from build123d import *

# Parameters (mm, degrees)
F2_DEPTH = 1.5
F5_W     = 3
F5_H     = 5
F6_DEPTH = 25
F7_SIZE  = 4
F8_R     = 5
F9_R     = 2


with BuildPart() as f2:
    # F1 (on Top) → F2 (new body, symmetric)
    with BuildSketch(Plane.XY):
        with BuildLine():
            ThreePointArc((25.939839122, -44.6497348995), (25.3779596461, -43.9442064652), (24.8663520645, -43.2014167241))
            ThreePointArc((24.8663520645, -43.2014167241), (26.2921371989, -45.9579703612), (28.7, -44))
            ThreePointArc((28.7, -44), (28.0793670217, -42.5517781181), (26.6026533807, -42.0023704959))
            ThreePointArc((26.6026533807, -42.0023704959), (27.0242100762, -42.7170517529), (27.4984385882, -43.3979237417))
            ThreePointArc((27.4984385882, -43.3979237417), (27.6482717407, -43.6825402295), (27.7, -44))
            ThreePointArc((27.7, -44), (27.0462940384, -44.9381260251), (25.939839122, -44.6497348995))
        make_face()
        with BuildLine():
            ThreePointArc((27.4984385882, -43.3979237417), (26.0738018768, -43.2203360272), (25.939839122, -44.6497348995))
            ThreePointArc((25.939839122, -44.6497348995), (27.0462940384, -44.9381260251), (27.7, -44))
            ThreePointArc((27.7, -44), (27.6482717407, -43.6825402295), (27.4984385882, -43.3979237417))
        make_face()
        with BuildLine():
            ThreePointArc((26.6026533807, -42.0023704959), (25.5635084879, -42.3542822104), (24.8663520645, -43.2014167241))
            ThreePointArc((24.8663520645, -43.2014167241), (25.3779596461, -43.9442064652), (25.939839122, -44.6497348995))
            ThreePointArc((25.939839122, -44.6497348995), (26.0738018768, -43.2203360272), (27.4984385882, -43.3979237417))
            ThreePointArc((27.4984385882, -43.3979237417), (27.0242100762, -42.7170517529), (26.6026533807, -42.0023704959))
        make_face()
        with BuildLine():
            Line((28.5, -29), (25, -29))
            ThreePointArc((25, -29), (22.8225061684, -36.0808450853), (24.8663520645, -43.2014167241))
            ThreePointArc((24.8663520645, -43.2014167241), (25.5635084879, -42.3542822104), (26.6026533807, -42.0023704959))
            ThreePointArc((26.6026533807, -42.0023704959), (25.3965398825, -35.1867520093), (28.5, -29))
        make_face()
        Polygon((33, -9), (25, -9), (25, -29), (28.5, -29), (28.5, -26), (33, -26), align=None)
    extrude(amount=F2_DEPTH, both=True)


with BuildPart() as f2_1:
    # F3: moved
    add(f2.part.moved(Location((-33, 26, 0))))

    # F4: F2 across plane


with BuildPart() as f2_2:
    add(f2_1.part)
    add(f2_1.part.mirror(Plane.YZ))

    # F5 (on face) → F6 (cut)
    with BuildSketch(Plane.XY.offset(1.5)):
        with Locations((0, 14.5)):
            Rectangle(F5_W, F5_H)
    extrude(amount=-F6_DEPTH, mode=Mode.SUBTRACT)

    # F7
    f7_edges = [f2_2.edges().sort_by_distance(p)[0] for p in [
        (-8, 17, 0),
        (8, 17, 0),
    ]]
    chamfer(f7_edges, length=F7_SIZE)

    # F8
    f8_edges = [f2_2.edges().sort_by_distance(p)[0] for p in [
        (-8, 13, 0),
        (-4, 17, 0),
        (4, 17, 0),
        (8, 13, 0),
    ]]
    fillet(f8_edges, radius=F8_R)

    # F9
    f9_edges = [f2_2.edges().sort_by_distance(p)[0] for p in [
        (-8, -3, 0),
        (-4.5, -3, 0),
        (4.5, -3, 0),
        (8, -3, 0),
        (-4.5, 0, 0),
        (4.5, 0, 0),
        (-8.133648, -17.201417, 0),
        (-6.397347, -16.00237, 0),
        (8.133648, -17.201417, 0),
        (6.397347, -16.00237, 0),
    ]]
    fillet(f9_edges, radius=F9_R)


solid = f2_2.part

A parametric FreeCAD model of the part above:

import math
import FreeCAD as App
import Part
import Sketcher
from FreeCAD import Vector
Q = App.Units.Quantity


def edges_at(feature, points):
    """Names of the edges that pass closest to the given points."""
    edges = feature.Shape.Edges
    near = lambda p: min(range(len(edges)), key=lambda i: edges[i].distToShape(Part.Vertex(*p))[0])
    return sorted({f"Edge{near(p) + 1}" for p in points})

doc = App.newDocument("Part")
body = doc.addObject("PartDesign::Body", "Body")

# Sketch on XY plane
sketch1 = body.newObject("Sketcher::SketchObject", "Sketch")
sketch1.AttachmentSupport = (doc.getObject("XY_Plane"), [""])
sketch1.MapMode = "FlatFace"
sketch1.addGeometry([
    Part.ArcOfCircle(Part.Circle(Vector(26.7, -44, 0), Vector(0, 0, 1), 2), math.radians(156), math.radians(360)),  # 0
    Part.ArcOfCircle(Part.Circle(Vector(26.7, -44, 0), Vector(0, 0, 1), 2), math.radians(0), math.radians(93)),  # 1
    Part.ArcOfCircle(Part.Circle(Vector(36.3, -36.8, 0), Vector(0, 0, 1), 11), math.radians(135), math.radians(208)),  # 2
    Part.LineSegment(Vector(28.5, -29, 0), Vector(28.5, -26, 0)),  # 3
    Part.LineSegment(Vector(28.5, -26, 0), Vector(33, -26, 0)),  # 4
    Part.LineSegment(Vector(33, -26, 0), Vector(33, -9, 0)),  # 5
    Part.LineSegment(Vector(33, -9, 0), Vector(25, -9, 0)),  # 6
    Part.LineSegment(Vector(25, -9, 0), Vector(25, -29, 0)),  # 7
    Part.ArcOfCircle(Part.Circle(Vector(35.8, -36.2, 0), Vector(0, 0, 1), 13), math.radians(146), math.radians(213)),  # 8
], False)
sketch1.addConstraint([
    Sketcher.Constraint("Tangent", 0, 2, 1, 1),
    Sketcher.Constraint("Coincident", 1, 2, 2, 2),
    Sketcher.Constraint("Coincident", 2, 1, 3, 1),
    Sketcher.Constraint("Coincident", 3, 2, 4, 1),
    Sketcher.Constraint("Coincident", 4, 2, 5, 1),
    Sketcher.Constraint("Coincident", 5, 2, 6, 1),
    Sketcher.Constraint("Coincident", 6, 2, 7, 1),
    Sketcher.Constraint("Coincident", 7, 2, 8, 1),
    Sketcher.Constraint("Coincident", 8, 2, 0, 1),
    Sketcher.Constraint("Vertical", 3),
    Sketcher.Constraint("Horizontal", 4),
    Sketcher.Constraint("Vertical", 5),
    Sketcher.Constraint("Horizontal", 6),
    Sketcher.Constraint("Vertical", 7),
    Sketcher.Constraint("Equal", 0, 1),
    Sketcher.Constraint("Horizontal", 1, 3, 0, 2),
    Sketcher.Constraint("Horizontal", 2, 1, 7, 2),
    Sketcher.Constraint("Radius", 0, Q("2 mm")),
    Sketcher.Constraint("Radius", 2, Q("11 mm")),
    Sketcher.Constraint("Radius", 8, Q("13 mm")),
    Sketcher.Constraint("DistanceX", 6, 2, 6, 1, Q("8 mm")),
    Sketcher.Constraint("DistanceY", 3, 1, 3, 2, Q("3 mm")),
    Sketcher.Constraint("DistanceY", 5, 1, 5, 2, Q("17 mm")),
    Sketcher.Constraint("DistanceX", 4, 1, 4, 2, Q("4.5 mm")),
    Sketcher.Constraint("DistanceY", 0, 3, -1, 1, Q("44 mm")),
    Sketcher.Constraint("DistanceY", 2, 1, -1, 1, Q("29 mm")),
    Sketcher.Constraint("DistanceX", -1, 1, 4, 2, Q("33 mm")),
    Sketcher.Constraint("DistanceX", -1, 1, 0, 3, Q("26.7 mm")),
    Sketcher.Constraint("DistanceX", 8, 2, 1, 2, Q("1.736301 mm")),
    Sketcher.Constraint("DistanceX", -1, 1, 8, 3, Q("35.821931 mm")),
])
pad1 = body.newObject("PartDesign::Pad", "Pad")
pad1.Profile = sketch1
pad1.Length = 3
pad1.Midplane = True
body2 = doc.addObject("PartDesign::Body", "Body001")
doc.recompute()

body.Placement = App.Placement(Vector(-33, 26, 0), App.Rotation(Vector(0, 0, 1), 0))
boolean = body2.newObject("PartDesign::Boolean", "Boolean")
boolean.Type = "Fuse"
boolean.addObjects([body])
body3 = doc.addObject("PartDesign::Body", "Body002")
doc.recompute()

body3.BaseFeature = body2
doc.recompute()

mirroring = doc.addObject("Part::Mirroring", "Mirroring")
mirroring.Source = body2
mirroring.Base = Vector(0, 0, 0)
mirroring.Normal = Vector(1, 0, 0)
body4 = doc.addObject("PartDesign::Body", "Body003")
body4.BaseFeature = mirroring
boolean2 = body3.newObject("PartDesign::Boolean", "Boolean001")
boolean2.Type = "Fuse"
boolean2.addObjects([body4])
doc.recompute()

# Sketch on XY plane
sketch2 = body3.newObject("Sketcher::SketchObject", "Sketch001")
sketch2.AttachmentSupport = (doc.getObject("XY_Plane002"), [""])
sketch2.MapMode = "FlatFace"
sketch2.AttachmentOffset = App.Placement(Vector(0, 0, 1.5), App.Rotation())
sketch2.addGeometry([
    Part.LineSegment(Vector(-1.5, 17, 0), Vector(-1.5, 12, 0)),
    Part.LineSegment(Vector(-1.5, 12, 0), Vector(1.5, 12, 0)),
    Part.LineSegment(Vector(1.5, 12, 0), Vector(1.5, 17, 0)),
    Part.LineSegment(Vector(1.5, 17, 0), Vector(-1.5, 17, 0)),
], False)
sketch2.addConstraint([
    Sketcher.Constraint("Coincident", 0, 2, 1, 1),
    Sketcher.Constraint("Coincident", 1, 2, 2, 1),
    Sketcher.Constraint("Coincident", 2, 2, 3, 1),
    Sketcher.Constraint("Coincident", 3, 2, 0, 1),
    Sketcher.Constraint("Vertical", 0),
    Sketcher.Constraint("Horizontal", 1),
    Sketcher.Constraint("Vertical", 2),
    Sketcher.Constraint("Horizontal", 3),
    Sketcher.Constraint("DistanceX", 1, 1, 1, 2, Q("3 mm")),
    Sketcher.Constraint("DistanceY", 0, 2, 0, 1, Q("5 mm")),
    Sketcher.Constraint("DistanceY", -1, 1, 0, 2, Q("12 mm")),
    Sketcher.Constraint("DistanceX", 0, 2, -1, 1, Q("1.5 mm")),
])
pocket1 = body3.newObject("PartDesign::Pocket", "Pocket")
pocket1.Profile = sketch2
pocket1.Length = 25
doc.recompute()

chamfer = body3.newObject("PartDesign::Chamfer", "Chamfer")
chamfer.Base = (pocket1, edges_at(pocket1, [(-8, 17, 0), (8, 17, 0)]))
chamfer.Size = 4
doc.recompute()

fillet = body3.newObject("PartDesign::Fillet", "Fillet")
fillet.Base = (chamfer, edges_at(chamfer, [
    (-8, 13, 0),
    (-4, 17, 0),
    (4, 17, 0),
    (8, 13, 0),
]))
fillet.Radius = 5
doc.recompute()

fillet2 = body3.newObject("PartDesign::Fillet", "Fillet001")
fillet2.Base = (fillet, edges_at(fillet, [
    (-8, -3, 0),
    (-4.5, -3, 0),
    (4.5, -3, 0),
    (8, -3, 0),
    (-4.5, 0, 0),
    (4.5, 0, 0),
    (-8.134, -17.201, 0),
    (-6.397, -16.002, 0),
    (8.134, -17.201, 0),
    (6.397, -16.002, 0),
]))
fillet2.Radius = 2
mirroring.Visibility = False

doc.recompute()
